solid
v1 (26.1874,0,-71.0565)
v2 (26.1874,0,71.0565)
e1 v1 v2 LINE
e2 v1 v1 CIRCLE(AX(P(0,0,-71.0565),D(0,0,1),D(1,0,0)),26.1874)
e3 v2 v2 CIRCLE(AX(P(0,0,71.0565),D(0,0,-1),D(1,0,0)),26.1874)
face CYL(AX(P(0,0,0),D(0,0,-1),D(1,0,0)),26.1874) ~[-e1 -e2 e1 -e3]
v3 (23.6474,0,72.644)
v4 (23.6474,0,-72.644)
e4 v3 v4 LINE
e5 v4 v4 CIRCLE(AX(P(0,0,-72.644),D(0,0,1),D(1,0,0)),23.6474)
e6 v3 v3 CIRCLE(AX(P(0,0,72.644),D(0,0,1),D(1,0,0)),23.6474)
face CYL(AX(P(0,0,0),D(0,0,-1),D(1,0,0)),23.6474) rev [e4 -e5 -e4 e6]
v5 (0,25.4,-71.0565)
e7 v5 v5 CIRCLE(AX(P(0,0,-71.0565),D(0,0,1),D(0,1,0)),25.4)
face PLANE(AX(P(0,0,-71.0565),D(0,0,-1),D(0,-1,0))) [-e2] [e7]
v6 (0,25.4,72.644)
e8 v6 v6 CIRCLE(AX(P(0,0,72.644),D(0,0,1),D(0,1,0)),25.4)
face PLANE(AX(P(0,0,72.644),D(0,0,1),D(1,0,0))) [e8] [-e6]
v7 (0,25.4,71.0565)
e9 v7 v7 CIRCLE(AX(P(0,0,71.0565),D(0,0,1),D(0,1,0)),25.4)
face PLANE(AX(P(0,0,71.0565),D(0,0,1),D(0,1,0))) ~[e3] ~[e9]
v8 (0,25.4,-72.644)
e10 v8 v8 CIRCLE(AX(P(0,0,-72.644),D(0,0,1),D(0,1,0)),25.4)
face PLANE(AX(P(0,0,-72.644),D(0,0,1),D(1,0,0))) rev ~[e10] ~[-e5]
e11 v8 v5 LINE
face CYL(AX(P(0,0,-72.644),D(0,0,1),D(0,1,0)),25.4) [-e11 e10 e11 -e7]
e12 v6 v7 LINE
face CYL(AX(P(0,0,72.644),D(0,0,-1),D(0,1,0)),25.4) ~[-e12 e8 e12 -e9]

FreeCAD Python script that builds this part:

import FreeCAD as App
import Part
import Sketcher

V = App.Vector
Q = App.Units.Quantity

doc = App.newDocument("Part")
body = doc.addObject("PartDesign::Body", "Body")

# Sketch on XY plane
sketch1 = body.newObject("Sketcher::SketchObject", "Sketch")
sketch1.AttachmentSupport = (doc.getObject("XY_Plane"), [""])
sketch1.MapMode = "FlatFace"
sketch1.addGeometry([
    Part.Circle(V(0, 0, 0), V(0, 0, 1), 26),
    Part.Circle(V(0, 0, 0), V(0, 0, 1), 24),
], False)
sketch1.addConstraint([
    Sketcher.Constraint("Coincident", 0, 3, -1, 1),
    Sketcher.Constraint("Coincident", 1, 3, -1, 1),
    Sketcher.Constraint("Diameter", 0, Q("2.062 in")),
    Sketcher.Constraint("Diameter", 1, Q("1.862 in")),
])
pad1 = body.newObject("PartDesign::Pad", "Pad")
pad1.Profile = sketch1
pad1.Length = Q("5.72 in")
pad1.Midplane = True

# Sketch on YZ plane
sketch2 = body.newObject("Sketcher::SketchObject", "Sketch001")
sketch2.AttachmentSupport = (doc.getObject("YZ_Plane"), [""])
sketch2.MapMode = "FlatFace"
sketch2.addGeometry([
    Part.LineSegment(V(26.2, 72.6, 0), V(25.4, 72.6, 0)),
    Part.LineSegment(V(25.4, 72.6, 0), V(25.4, 71.1, 0)),
    Part.LineSegment(V(25.4, 71.1, 0), V(26.2, 71.1, 0)),
    Part.LineSegment(V(26.2, 71.1, 0), V(26.2, 72.6, 0)),
], False)
sketch2.addConstraint([
    Sketcher.Constraint("Coincident", 0, 2, 1, 1),
    Sketcher.Constraint("Coincident", 1, 2, 2, 1),
    Sketcher.Constraint("Coincident", 2, 2, 3, 1),
    Sketcher.Constraint("Coincident", 3, 2, 0, 1),
    Sketcher.Constraint("Horizontal", 0),
    Sketcher.Constraint("Vertical", 1),
    Sketcher.Constraint("Horizontal", 2),
    Sketcher.Constraint("Vertical", 3),
    Sketcher.Constraint("DistanceX", 0, 2, 0, 1, Q("0.031 in")),
    Sketcher.Constraint("DistanceY", 1, 2, 1, 1, Q("0.0625 in")),
    Sketcher.Constraint("DistanceX", -1, 1, 0, 2, Q("1 in")),
    Sketcher.Constraint("DistanceY", -1, 1, 0, 2, Q("2.86 in")),
])
groove = body.newObject("PartDesign::Groove", "Groove")
groove.Profile = sketch2
groove.ReferenceAxis = (sketch2, ["V_Axis"])
groove.Angle = 360
doc.recompute()

mirrored = body.newObject("PartDesign::Mirrored", "Mirrored")
mirrored.Originals = [groove]
mirrored.MirrorPlane = (doc.getObject("XY_Plane"), [""])
body.Tip = mirrored

doc.recompute()
